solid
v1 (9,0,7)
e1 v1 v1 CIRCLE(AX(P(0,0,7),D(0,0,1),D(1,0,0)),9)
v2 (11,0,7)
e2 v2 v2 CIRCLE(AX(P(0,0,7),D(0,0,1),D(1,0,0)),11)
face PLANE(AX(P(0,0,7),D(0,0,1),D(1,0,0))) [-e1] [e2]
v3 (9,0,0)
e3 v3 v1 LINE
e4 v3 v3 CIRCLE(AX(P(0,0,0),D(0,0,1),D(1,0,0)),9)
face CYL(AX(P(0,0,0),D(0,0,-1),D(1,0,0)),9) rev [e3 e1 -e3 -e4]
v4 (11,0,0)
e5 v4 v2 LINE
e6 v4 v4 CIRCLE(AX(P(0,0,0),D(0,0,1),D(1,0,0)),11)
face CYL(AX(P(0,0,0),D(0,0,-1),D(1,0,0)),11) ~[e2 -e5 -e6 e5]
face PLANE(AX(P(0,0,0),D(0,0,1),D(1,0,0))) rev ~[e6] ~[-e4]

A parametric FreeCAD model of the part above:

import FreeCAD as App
import Part
import Sketcher

V = App.Vector
Q = App.Units.Quantity

doc = App.newDocument("Part")
body = doc.addObject("PartDesign::Body", "Body")

# Sketch on XY plane
sketch1 = body.newObject("Sketcher::SketchObject", "Sketch")
sketch1.AttachmentSupport = (doc.getObject("XY_Plane"), [""])
sketch1.MapMode = "FlatFace"
sketch1.addGeometry([
    Part.Circle(V(0, 0, 0), V(0, 0, 1), 11),
    Part.Circle(V(0, 0, 0), V(0, 0, 1), 9),
], False)
sketch1.addConstraint([
    Sketcher.Constraint("Coincident", 0, 3, -1, 1),
    Sketcher.Constraint("Coincident", 1, 3, -1, 1),
    Sketcher.Constraint("Diameter", 0, Q("22 mm")),
    Sketcher.Constraint("Diameter", 1, Q("18 mm")),
])
pad1 = body.newObject("PartDesign::Pad", "Pad")
pad1.Profile = sketch1
pad1.Length = 7

doc.recompute()
